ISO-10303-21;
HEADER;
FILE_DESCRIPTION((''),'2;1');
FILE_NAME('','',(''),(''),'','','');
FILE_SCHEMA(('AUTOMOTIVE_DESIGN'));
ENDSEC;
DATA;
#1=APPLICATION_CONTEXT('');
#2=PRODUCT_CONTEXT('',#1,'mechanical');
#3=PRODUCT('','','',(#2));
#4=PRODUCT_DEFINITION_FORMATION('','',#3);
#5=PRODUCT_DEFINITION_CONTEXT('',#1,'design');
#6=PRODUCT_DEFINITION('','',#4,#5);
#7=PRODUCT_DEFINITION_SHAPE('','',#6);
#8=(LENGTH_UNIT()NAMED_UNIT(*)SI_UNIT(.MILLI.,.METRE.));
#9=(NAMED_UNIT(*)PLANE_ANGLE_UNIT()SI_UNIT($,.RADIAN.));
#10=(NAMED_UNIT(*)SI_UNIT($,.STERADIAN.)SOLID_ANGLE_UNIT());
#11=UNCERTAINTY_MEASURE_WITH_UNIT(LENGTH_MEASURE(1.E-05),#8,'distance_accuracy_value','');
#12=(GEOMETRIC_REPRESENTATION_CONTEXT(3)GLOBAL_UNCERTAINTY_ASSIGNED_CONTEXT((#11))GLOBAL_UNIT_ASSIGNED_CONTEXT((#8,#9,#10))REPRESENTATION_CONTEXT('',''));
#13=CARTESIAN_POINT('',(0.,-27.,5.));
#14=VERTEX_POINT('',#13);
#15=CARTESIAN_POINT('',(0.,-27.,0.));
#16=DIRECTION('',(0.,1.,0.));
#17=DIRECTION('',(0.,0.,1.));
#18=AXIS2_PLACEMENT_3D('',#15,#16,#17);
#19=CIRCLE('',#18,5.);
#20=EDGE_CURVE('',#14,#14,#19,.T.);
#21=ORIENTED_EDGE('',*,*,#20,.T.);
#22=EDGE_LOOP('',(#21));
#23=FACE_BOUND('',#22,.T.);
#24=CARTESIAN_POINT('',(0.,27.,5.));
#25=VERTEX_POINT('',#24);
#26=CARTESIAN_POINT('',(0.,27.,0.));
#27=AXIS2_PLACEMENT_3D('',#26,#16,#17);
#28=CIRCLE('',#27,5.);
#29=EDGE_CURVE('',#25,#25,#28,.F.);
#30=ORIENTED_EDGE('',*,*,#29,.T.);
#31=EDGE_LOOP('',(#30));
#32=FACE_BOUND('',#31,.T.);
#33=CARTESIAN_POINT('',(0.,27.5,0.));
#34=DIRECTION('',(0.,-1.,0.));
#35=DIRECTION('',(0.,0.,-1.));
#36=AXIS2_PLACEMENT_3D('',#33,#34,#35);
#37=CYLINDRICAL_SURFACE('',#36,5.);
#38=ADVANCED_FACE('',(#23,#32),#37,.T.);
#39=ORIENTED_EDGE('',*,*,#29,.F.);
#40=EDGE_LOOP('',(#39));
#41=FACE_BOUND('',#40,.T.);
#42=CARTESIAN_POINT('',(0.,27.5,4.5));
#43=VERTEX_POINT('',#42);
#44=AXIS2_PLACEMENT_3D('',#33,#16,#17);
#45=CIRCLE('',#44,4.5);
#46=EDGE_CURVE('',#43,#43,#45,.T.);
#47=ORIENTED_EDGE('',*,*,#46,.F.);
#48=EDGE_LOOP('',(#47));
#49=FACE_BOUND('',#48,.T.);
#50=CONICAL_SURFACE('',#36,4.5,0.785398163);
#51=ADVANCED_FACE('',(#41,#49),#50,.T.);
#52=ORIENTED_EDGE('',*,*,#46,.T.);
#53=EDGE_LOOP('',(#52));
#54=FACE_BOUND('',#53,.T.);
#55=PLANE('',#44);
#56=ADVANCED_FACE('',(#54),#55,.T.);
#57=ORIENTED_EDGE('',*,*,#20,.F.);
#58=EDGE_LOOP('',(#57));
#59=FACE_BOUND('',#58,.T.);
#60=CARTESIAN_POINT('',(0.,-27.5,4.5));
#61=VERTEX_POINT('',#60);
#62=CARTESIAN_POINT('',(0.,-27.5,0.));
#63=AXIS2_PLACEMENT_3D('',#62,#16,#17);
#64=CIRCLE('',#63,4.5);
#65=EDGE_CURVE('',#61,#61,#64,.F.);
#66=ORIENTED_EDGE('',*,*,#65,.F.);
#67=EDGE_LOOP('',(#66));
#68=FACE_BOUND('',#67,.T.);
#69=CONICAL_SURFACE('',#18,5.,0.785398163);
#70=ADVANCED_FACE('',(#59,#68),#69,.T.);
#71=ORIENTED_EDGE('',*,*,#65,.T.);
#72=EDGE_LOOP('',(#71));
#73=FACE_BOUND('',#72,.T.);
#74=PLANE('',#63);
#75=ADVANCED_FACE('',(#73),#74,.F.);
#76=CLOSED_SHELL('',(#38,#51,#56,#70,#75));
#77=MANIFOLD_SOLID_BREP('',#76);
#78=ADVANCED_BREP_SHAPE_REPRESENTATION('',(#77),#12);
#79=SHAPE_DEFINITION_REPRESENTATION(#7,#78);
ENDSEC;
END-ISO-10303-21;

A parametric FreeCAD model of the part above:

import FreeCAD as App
import Part
import Sketcher
from FreeCAD import Vector


def edges_at(feature, points):
    """Names of the edges that pass closest to the given points."""
    edges = feature.Shape.Edges
    near = lambda p: min(range(len(edges)), key=lambda i: edges[i].distToShape(Part.Vertex(*p))[0])
    return sorted({f"Edge{near(p) + 1}" for p in points})

doc = App.newDocument("Part")
params = doc.addObject("Spreadsheet::Sheet", "Params")
for row, (alias, value) in enumerate([
    ("sketch1_diameter", "10 mm"),
    ("pad1_length", "55 mm"),
    ("chamfer_size", "0.5 mm"),
], start=1):
    params.set(f"A{row}", alias)
    params.set(f"B{row}", "=" + value)
    params.setAlias(f"B{row}", alias)

body = doc.addObject("PartDesign::Body", "Body")

# Sketch on XZ plane
sketch1 = body.newObject("Sketcher::SketchObject", "Sketch")
sketch1.AttachmentSupport = (doc.getObject("XZ_Plane"), [""])
sketch1.MapMode = "FlatFace"
sketch1.addGeometry(Part.Circle(Vector(0, 0, 0), Vector(0, 0, 1), 5), False)
sketch1.addConstraint(Sketcher.Constraint("Coincident", 0, 3, -1, 1))
sketch1.addConstraint(Sketcher.Constraint("Diameter", 0, 10.0))
sketch1.setExpression("Constraints[1]", "Params.sketch1_diameter")
pad1 = body.newObject("PartDesign::Pad", "Pad")
pad1.Profile = sketch1
pad1.setExpression("Length", "Params.pad1_length")
pad1.Midplane = True
doc.recompute()

chamfer = body.newObject("PartDesign::Chamfer", "Chamfer")
chamfer.Base = (pad1, edges_at(pad1, [(0, -27.5, -5), (0, 27.5, -5)]))
chamfer.setExpression("Size", "Params.chamfer_size")

doc.recompute()
